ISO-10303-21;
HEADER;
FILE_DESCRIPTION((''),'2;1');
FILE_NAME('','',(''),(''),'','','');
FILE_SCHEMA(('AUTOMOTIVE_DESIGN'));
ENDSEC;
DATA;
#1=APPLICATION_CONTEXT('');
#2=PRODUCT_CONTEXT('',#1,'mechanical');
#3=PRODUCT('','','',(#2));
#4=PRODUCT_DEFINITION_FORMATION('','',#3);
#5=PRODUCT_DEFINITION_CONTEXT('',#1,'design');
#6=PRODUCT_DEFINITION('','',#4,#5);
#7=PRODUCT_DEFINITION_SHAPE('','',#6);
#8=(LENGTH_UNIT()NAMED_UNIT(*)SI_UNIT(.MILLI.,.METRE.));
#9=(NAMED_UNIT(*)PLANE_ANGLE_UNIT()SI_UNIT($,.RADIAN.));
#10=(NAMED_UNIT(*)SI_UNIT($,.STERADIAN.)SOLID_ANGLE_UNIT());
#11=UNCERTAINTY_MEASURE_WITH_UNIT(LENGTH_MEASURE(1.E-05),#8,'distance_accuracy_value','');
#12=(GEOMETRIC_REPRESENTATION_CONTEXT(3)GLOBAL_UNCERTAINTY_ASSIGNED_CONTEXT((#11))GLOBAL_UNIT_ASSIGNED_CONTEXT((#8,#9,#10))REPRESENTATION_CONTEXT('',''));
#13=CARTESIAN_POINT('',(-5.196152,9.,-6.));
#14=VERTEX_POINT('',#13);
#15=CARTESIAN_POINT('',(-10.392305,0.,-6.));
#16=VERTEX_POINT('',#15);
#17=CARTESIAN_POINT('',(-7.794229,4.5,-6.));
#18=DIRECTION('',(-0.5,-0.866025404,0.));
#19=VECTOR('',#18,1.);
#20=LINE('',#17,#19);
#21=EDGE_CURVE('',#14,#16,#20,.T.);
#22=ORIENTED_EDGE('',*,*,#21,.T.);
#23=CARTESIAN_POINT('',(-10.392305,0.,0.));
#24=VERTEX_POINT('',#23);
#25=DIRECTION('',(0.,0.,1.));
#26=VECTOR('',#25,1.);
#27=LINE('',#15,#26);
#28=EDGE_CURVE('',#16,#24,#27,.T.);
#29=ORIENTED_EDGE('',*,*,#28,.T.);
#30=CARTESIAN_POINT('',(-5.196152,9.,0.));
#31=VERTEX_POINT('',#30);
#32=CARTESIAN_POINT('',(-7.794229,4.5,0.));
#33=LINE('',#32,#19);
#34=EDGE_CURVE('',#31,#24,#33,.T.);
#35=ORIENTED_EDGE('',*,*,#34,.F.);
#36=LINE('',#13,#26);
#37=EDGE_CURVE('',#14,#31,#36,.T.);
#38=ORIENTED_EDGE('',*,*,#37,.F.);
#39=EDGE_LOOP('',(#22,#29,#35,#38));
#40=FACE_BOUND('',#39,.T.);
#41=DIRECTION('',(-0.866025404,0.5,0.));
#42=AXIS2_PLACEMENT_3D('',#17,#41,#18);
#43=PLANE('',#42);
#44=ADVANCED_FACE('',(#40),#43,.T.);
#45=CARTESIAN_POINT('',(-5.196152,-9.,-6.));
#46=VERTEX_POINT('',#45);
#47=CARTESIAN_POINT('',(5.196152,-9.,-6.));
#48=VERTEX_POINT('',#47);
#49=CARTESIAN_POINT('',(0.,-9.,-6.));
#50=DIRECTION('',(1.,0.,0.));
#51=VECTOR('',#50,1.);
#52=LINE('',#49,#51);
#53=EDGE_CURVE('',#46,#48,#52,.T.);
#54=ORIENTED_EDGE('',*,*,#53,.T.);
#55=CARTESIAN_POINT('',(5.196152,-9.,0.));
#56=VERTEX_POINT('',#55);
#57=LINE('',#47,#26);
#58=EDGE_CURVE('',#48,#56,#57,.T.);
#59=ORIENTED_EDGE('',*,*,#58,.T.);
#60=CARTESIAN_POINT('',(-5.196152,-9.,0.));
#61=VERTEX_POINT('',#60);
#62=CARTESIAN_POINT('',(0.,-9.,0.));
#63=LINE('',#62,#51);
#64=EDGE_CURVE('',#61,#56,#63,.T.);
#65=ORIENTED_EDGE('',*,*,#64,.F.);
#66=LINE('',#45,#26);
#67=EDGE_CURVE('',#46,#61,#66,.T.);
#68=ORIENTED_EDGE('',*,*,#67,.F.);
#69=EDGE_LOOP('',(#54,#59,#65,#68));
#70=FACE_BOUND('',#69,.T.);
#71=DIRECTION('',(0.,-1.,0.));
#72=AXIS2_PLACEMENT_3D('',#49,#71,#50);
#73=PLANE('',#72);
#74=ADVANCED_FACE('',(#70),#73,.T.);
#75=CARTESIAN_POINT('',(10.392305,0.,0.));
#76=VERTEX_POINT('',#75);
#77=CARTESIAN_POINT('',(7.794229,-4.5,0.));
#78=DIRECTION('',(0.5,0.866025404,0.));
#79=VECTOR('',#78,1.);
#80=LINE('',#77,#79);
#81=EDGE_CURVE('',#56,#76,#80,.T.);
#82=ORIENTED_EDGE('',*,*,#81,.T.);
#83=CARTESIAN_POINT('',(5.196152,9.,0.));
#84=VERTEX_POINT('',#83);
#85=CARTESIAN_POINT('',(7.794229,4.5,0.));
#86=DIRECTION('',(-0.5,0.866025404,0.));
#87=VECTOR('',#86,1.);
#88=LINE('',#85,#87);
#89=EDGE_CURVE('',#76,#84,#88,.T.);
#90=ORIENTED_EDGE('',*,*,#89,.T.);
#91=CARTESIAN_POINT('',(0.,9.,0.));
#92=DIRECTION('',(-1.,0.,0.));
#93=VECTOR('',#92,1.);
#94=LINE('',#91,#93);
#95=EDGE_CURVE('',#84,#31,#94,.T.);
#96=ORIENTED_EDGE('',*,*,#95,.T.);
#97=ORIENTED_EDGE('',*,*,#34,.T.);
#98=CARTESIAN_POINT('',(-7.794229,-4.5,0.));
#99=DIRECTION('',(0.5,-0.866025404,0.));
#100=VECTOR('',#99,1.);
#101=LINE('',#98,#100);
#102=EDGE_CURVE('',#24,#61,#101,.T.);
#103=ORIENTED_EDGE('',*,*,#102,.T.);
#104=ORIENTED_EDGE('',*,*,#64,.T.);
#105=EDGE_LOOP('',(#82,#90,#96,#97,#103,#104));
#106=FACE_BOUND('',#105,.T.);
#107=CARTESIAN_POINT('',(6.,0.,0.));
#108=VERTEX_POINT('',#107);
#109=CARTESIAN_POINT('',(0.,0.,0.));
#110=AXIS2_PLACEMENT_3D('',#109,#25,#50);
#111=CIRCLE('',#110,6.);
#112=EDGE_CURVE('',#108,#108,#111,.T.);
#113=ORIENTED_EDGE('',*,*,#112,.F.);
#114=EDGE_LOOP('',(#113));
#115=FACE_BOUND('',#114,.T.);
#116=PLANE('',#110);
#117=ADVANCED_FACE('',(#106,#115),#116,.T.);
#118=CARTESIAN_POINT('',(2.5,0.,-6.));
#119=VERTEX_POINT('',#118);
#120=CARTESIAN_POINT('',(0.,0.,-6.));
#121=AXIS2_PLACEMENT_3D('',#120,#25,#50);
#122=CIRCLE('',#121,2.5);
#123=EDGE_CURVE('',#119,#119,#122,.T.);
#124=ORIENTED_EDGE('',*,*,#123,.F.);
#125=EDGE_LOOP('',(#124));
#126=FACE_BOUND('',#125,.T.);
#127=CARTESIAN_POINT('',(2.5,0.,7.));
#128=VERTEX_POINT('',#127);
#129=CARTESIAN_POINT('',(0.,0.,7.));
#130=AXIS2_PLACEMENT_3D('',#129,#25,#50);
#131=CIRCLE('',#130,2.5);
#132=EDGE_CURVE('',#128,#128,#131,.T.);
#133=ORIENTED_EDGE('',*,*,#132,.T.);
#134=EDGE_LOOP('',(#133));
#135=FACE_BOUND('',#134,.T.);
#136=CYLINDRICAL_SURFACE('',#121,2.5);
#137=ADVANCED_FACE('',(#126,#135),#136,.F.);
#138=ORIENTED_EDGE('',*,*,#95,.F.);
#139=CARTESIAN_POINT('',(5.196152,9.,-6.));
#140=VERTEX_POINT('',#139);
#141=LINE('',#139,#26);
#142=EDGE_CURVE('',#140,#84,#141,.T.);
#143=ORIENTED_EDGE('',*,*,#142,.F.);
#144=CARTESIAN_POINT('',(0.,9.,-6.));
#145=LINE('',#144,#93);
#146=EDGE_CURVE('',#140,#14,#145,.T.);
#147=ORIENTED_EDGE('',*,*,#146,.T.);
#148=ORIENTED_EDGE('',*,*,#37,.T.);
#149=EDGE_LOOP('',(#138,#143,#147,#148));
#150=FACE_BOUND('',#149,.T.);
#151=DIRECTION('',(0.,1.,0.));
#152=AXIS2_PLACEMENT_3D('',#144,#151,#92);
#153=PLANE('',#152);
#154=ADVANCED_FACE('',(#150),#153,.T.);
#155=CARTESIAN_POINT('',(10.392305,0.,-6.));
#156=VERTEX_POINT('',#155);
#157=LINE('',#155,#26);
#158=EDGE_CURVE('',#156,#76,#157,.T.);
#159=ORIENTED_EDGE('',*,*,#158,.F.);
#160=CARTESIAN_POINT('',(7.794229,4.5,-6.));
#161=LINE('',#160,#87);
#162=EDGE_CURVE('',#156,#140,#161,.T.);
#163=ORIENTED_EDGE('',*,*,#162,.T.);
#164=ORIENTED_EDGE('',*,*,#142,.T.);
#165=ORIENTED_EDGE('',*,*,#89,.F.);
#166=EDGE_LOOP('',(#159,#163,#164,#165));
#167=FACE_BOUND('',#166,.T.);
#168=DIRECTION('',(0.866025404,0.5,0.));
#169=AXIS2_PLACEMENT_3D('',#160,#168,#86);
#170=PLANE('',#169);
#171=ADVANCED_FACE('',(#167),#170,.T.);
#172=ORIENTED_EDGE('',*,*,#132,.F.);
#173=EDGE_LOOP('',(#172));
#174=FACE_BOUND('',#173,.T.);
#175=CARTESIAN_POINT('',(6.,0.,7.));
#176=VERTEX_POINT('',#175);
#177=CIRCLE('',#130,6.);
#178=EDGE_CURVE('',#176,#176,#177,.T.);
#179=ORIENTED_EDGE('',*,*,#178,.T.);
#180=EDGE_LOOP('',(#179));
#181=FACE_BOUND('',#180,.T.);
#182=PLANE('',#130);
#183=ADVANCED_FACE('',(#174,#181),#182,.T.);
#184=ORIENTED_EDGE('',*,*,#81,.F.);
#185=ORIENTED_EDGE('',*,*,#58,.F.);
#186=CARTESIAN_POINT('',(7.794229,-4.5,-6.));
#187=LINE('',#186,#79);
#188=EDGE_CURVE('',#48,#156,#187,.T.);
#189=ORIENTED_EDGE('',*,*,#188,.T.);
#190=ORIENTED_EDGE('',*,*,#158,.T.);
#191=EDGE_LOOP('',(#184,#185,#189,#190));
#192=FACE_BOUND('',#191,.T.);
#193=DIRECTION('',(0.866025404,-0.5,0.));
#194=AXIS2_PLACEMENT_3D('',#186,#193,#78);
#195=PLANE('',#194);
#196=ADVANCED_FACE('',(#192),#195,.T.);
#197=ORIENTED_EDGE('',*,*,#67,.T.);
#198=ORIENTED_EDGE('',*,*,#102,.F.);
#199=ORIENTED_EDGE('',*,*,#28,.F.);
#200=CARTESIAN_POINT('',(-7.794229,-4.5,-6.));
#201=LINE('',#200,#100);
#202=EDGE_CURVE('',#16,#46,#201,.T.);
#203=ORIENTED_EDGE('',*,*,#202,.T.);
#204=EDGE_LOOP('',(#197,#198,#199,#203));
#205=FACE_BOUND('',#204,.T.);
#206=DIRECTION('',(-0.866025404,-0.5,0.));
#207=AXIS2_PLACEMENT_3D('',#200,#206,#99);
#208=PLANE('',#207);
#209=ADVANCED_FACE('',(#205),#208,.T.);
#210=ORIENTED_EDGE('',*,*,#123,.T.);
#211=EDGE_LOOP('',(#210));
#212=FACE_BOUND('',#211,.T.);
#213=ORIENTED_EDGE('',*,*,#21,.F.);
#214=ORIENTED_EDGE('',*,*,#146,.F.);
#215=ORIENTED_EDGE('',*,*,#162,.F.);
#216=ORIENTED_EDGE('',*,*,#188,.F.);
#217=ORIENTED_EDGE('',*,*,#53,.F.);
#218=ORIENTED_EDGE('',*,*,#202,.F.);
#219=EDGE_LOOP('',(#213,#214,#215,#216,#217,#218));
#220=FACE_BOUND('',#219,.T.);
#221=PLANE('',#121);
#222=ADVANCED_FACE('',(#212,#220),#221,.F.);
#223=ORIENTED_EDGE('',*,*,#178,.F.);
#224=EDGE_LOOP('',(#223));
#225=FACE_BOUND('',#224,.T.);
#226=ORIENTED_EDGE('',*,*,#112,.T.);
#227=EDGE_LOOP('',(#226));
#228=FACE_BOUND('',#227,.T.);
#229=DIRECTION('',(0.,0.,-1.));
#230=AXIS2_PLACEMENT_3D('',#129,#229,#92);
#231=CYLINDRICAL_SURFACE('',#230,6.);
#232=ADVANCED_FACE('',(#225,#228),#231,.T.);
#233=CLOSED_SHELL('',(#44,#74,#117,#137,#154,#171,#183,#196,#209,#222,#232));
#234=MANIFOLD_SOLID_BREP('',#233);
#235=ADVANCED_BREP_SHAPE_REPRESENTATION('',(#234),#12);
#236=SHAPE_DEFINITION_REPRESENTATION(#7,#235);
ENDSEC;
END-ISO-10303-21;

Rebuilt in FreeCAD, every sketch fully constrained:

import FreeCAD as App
import Part
import Sketcher

V = App.Vector
Q = App.Units.Quantity


def add_polygon(sketch, points):
    """Adds a closed chain of lines whose ends are joined by coincident constraints."""
    first, n = sketch.GeometryCount, len(points)
    for a, b in zip(points, points[1:] + points[:1]):
        sketch.addGeometry(Part.LineSegment(App.Vector(*a, 0), App.Vector(*b, 0)), False)
    for i in range(n):
        sketch.addConstraint(Sketcher.Constraint("Coincident", first + i, 2, first + (i + 1) % n, 1))

doc = App.newDocument("Part")
body = doc.addObject("PartDesign::Body", "Body")

sketch1 = body.newObject("Sketcher::SketchObject", "Sketch")
sketch1.AttachmentSupport = (doc.getObject("XY_Plane"), [""])
sketch1.MapMode = "FlatFace"
add_polygon(sketch1, [(-5.196152, -9), (5.196152, -9), (10.392305, 0), (5.196152, 9), (-5.196152, 9), (-10.392305, 0)])
sketch1.addGeometry(Part.Circle(V(0, 0, 0), V(0, 0, 1), 2.5), False)
sketch1.addConstraint([
    Sketcher.Constraint("Horizontal", 0),
    Sketcher.Constraint("Horizontal", 3),
    Sketcher.Constraint("Coincident", 6, 3, -1, 1),
    Sketcher.Constraint("Symmetric", 0, 2, 3, 2, -1, 1),
    Sketcher.Constraint("Symmetric", 1, 2, 4, 2, -1, 1),
    Sketcher.Constraint("PointOnObject", 1, 2, -1),
    Sketcher.Constraint("Parallel", 2, 5),
    Sketcher.Constraint("Vertical", 0, 2, 2, 2),
    Sketcher.Constraint("Diameter", 6, Q("5 mm")),
    Sketcher.Constraint("Angle", 1, Q("60 deg")),
    Sketcher.Constraint("DistanceY", 0, 2, -1, 1, Q("9 mm")),
    Sketcher.Constraint("DistanceX", 0, 1, 0, 2, Q("10.392305 mm")),
])
pad1 = body.newObject("PartDesign::Pad", "Pad")
pad1.Profile = sketch1
pad1.Length = 6
pad1.Reversed = True

sketch2 = body.newObject("Sketcher::SketchObject", "Sketch001")
sketch2.AttachmentSupport = (doc.getObject("XY_Plane"), [""])
sketch2.MapMode = "FlatFace"
sketch2.AttachmentOffset = App.Placement(V(0, 0, 7), App.Rotation())
sketch2.addGeometry([
    Part.Circle(V(0, 0, 0), V(0, 0, 1), 6),
    Part.Circle(V(0, 0, 0), V(0, 0, 1), 2.5),
], False)
sketch2.addConstraint([
    Sketcher.Constraint("Coincident", 0, 3, -1, 1),
    Sketcher.Constraint("Coincident", 1, 3, -1, 1),
    Sketcher.Constraint("Diameter", 0, Q("12 mm")),
    Sketcher.Constraint("Diameter", 1, Q("5 mm")),
])
pad2 = body.newObject("PartDesign::Pad", "Pad001")
pad2.Profile = sketch2
pad2.Length = 7
pad2.Reversed = True

doc.recompute()
